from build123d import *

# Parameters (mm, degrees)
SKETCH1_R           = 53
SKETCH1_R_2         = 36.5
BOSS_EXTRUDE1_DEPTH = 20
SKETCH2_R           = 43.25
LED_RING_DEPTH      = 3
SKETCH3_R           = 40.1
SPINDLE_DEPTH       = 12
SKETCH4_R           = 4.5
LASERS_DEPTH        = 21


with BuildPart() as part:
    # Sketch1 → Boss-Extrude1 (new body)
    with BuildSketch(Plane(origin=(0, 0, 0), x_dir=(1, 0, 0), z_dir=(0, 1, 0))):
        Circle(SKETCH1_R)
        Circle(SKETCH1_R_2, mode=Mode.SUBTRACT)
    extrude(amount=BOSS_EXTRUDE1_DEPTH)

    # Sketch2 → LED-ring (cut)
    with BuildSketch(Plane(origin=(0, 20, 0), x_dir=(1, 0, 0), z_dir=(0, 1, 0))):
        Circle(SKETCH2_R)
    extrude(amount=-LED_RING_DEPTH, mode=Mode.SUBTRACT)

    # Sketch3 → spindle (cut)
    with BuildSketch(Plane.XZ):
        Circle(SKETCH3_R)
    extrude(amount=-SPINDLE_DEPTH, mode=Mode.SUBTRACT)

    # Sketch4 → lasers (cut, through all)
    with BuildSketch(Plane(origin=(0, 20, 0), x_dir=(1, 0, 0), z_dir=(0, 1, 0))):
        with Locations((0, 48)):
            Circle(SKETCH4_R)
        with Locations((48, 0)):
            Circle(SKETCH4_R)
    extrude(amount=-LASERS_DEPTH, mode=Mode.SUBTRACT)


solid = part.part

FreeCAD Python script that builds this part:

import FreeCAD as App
import Part
import Sketcher

V = App.Vector
Q = App.Units.Quantity

doc = App.newDocument("Part")
body = doc.addObject("PartDesign::Body", "Body")

# Sketch on XZ plane
sketch1 = body.newObject("Sketcher::SketchObject", "Sketch")
sketch1.AttachmentSupport = (doc.getObject("XZ_Plane"), [""])
sketch1.MapMode = "FlatFace"
sketch1.addGeometry([
    Part.Circle(V(0, 0, 0), V(0, 0, 1), 53),
    Part.Circle(V(0, 0, 0), V(0, 0, 1), 36),
], False)
sketch1.addConstraint([
    Sketcher.Constraint("Coincident", 0, 3, -1, 1),
    Sketcher.Constraint("Coincident", 1, 3, -1, 1),
    Sketcher.Constraint("Diameter", 0, Q("106 mm")),
    Sketcher.Constraint("Diameter", 1, Q("73 mm")),
])
pad1 = body.newObject("PartDesign::Pad", "Pad")
pad1.Profile = sketch1
pad1.Length = 20
pad1.Reversed = True

# Sketch on XZ plane
sketch2 = body.newObject("Sketcher::SketchObject", "Sketch001")
sketch2.AttachmentSupport = (doc.getObject("XZ_Plane"), [""])
sketch2.MapMode = "FlatFace"
sketch2.AttachmentOffset = App.Placement(V(0, 0, -20), App.Rotation())
sketch2.addGeometry(Part.Circle(V(0, 0, 0), V(0, 0, 1), 43), False)
sketch2.addConstraint([
    Sketcher.Constraint("Coincident", 0, 3, -1, 1),
    Sketcher.Constraint("Diameter", 0, Q("86.5 mm")),
])
pocket1 = body.newObject("PartDesign::Pocket", "Pocket")
pocket1.Profile = sketch2
pocket1.Length = 3
pocket1.Reversed = True

# Sketch on XZ plane
sketch3 = body.newObject("Sketcher::SketchObject", "Sketch002")
sketch3.AttachmentSupport = (doc.getObject("XZ_Plane"), [""])
sketch3.MapMode = "FlatFace"
sketch3.addGeometry(Part.Circle(V(0, 0, 0), V(0, 0, 1), 40), False)
sketch3.addConstraint([
    Sketcher.Constraint("Coincident", 0, 3, -1, 1),
    Sketcher.Constraint("Diameter", 0, Q("80.2 mm")),
])
pocket2 = body.newObject("PartDesign::Pocket", "Pocket001")
pocket2.Profile = sketch3
pocket2.Length = 12

# Sketch on XZ plane
sketch4 = body.newObject("Sketcher::SketchObject", "Sketch003")
sketch4.AttachmentSupport = (doc.getObject("XZ_Plane"), [""])
sketch4.MapMode = "FlatFace"
sketch4.AttachmentOffset = App.Placement(V(0, 0, -20), App.Rotation())
sketch4.addGeometry([
    Part.Circle(V(0, -48, 0), V(0, 0, 1), 4.5),
    Part.Circle(V(48, 0, 0), V(0, 0, 1), 4.5),
], False)
sketch4.addConstraint([
    Sketcher.Constraint("Equal", 0, 1),
    Sketcher.Constraint("PointOnObject", 0, 3, -2),
    Sketcher.Constraint("PointOnObject", 1, 3, -1),
    Sketcher.Constraint("Diameter", 0, Q("9 mm")),
    Sketcher.Constraint("DistanceY", 0, 3, -1, 1, Q("48 mm")),
    Sketcher.Constraint("DistanceX", -1, 1, 1, 3, Q("48 mm")),
])
pocket3 = body.newObject("PartDesign::Pocket", "Pocket002")
pocket3.Profile = sketch4
pocket3.Type = "ThroughAll"
pocket3.Reversed = True

doc.recompute()
